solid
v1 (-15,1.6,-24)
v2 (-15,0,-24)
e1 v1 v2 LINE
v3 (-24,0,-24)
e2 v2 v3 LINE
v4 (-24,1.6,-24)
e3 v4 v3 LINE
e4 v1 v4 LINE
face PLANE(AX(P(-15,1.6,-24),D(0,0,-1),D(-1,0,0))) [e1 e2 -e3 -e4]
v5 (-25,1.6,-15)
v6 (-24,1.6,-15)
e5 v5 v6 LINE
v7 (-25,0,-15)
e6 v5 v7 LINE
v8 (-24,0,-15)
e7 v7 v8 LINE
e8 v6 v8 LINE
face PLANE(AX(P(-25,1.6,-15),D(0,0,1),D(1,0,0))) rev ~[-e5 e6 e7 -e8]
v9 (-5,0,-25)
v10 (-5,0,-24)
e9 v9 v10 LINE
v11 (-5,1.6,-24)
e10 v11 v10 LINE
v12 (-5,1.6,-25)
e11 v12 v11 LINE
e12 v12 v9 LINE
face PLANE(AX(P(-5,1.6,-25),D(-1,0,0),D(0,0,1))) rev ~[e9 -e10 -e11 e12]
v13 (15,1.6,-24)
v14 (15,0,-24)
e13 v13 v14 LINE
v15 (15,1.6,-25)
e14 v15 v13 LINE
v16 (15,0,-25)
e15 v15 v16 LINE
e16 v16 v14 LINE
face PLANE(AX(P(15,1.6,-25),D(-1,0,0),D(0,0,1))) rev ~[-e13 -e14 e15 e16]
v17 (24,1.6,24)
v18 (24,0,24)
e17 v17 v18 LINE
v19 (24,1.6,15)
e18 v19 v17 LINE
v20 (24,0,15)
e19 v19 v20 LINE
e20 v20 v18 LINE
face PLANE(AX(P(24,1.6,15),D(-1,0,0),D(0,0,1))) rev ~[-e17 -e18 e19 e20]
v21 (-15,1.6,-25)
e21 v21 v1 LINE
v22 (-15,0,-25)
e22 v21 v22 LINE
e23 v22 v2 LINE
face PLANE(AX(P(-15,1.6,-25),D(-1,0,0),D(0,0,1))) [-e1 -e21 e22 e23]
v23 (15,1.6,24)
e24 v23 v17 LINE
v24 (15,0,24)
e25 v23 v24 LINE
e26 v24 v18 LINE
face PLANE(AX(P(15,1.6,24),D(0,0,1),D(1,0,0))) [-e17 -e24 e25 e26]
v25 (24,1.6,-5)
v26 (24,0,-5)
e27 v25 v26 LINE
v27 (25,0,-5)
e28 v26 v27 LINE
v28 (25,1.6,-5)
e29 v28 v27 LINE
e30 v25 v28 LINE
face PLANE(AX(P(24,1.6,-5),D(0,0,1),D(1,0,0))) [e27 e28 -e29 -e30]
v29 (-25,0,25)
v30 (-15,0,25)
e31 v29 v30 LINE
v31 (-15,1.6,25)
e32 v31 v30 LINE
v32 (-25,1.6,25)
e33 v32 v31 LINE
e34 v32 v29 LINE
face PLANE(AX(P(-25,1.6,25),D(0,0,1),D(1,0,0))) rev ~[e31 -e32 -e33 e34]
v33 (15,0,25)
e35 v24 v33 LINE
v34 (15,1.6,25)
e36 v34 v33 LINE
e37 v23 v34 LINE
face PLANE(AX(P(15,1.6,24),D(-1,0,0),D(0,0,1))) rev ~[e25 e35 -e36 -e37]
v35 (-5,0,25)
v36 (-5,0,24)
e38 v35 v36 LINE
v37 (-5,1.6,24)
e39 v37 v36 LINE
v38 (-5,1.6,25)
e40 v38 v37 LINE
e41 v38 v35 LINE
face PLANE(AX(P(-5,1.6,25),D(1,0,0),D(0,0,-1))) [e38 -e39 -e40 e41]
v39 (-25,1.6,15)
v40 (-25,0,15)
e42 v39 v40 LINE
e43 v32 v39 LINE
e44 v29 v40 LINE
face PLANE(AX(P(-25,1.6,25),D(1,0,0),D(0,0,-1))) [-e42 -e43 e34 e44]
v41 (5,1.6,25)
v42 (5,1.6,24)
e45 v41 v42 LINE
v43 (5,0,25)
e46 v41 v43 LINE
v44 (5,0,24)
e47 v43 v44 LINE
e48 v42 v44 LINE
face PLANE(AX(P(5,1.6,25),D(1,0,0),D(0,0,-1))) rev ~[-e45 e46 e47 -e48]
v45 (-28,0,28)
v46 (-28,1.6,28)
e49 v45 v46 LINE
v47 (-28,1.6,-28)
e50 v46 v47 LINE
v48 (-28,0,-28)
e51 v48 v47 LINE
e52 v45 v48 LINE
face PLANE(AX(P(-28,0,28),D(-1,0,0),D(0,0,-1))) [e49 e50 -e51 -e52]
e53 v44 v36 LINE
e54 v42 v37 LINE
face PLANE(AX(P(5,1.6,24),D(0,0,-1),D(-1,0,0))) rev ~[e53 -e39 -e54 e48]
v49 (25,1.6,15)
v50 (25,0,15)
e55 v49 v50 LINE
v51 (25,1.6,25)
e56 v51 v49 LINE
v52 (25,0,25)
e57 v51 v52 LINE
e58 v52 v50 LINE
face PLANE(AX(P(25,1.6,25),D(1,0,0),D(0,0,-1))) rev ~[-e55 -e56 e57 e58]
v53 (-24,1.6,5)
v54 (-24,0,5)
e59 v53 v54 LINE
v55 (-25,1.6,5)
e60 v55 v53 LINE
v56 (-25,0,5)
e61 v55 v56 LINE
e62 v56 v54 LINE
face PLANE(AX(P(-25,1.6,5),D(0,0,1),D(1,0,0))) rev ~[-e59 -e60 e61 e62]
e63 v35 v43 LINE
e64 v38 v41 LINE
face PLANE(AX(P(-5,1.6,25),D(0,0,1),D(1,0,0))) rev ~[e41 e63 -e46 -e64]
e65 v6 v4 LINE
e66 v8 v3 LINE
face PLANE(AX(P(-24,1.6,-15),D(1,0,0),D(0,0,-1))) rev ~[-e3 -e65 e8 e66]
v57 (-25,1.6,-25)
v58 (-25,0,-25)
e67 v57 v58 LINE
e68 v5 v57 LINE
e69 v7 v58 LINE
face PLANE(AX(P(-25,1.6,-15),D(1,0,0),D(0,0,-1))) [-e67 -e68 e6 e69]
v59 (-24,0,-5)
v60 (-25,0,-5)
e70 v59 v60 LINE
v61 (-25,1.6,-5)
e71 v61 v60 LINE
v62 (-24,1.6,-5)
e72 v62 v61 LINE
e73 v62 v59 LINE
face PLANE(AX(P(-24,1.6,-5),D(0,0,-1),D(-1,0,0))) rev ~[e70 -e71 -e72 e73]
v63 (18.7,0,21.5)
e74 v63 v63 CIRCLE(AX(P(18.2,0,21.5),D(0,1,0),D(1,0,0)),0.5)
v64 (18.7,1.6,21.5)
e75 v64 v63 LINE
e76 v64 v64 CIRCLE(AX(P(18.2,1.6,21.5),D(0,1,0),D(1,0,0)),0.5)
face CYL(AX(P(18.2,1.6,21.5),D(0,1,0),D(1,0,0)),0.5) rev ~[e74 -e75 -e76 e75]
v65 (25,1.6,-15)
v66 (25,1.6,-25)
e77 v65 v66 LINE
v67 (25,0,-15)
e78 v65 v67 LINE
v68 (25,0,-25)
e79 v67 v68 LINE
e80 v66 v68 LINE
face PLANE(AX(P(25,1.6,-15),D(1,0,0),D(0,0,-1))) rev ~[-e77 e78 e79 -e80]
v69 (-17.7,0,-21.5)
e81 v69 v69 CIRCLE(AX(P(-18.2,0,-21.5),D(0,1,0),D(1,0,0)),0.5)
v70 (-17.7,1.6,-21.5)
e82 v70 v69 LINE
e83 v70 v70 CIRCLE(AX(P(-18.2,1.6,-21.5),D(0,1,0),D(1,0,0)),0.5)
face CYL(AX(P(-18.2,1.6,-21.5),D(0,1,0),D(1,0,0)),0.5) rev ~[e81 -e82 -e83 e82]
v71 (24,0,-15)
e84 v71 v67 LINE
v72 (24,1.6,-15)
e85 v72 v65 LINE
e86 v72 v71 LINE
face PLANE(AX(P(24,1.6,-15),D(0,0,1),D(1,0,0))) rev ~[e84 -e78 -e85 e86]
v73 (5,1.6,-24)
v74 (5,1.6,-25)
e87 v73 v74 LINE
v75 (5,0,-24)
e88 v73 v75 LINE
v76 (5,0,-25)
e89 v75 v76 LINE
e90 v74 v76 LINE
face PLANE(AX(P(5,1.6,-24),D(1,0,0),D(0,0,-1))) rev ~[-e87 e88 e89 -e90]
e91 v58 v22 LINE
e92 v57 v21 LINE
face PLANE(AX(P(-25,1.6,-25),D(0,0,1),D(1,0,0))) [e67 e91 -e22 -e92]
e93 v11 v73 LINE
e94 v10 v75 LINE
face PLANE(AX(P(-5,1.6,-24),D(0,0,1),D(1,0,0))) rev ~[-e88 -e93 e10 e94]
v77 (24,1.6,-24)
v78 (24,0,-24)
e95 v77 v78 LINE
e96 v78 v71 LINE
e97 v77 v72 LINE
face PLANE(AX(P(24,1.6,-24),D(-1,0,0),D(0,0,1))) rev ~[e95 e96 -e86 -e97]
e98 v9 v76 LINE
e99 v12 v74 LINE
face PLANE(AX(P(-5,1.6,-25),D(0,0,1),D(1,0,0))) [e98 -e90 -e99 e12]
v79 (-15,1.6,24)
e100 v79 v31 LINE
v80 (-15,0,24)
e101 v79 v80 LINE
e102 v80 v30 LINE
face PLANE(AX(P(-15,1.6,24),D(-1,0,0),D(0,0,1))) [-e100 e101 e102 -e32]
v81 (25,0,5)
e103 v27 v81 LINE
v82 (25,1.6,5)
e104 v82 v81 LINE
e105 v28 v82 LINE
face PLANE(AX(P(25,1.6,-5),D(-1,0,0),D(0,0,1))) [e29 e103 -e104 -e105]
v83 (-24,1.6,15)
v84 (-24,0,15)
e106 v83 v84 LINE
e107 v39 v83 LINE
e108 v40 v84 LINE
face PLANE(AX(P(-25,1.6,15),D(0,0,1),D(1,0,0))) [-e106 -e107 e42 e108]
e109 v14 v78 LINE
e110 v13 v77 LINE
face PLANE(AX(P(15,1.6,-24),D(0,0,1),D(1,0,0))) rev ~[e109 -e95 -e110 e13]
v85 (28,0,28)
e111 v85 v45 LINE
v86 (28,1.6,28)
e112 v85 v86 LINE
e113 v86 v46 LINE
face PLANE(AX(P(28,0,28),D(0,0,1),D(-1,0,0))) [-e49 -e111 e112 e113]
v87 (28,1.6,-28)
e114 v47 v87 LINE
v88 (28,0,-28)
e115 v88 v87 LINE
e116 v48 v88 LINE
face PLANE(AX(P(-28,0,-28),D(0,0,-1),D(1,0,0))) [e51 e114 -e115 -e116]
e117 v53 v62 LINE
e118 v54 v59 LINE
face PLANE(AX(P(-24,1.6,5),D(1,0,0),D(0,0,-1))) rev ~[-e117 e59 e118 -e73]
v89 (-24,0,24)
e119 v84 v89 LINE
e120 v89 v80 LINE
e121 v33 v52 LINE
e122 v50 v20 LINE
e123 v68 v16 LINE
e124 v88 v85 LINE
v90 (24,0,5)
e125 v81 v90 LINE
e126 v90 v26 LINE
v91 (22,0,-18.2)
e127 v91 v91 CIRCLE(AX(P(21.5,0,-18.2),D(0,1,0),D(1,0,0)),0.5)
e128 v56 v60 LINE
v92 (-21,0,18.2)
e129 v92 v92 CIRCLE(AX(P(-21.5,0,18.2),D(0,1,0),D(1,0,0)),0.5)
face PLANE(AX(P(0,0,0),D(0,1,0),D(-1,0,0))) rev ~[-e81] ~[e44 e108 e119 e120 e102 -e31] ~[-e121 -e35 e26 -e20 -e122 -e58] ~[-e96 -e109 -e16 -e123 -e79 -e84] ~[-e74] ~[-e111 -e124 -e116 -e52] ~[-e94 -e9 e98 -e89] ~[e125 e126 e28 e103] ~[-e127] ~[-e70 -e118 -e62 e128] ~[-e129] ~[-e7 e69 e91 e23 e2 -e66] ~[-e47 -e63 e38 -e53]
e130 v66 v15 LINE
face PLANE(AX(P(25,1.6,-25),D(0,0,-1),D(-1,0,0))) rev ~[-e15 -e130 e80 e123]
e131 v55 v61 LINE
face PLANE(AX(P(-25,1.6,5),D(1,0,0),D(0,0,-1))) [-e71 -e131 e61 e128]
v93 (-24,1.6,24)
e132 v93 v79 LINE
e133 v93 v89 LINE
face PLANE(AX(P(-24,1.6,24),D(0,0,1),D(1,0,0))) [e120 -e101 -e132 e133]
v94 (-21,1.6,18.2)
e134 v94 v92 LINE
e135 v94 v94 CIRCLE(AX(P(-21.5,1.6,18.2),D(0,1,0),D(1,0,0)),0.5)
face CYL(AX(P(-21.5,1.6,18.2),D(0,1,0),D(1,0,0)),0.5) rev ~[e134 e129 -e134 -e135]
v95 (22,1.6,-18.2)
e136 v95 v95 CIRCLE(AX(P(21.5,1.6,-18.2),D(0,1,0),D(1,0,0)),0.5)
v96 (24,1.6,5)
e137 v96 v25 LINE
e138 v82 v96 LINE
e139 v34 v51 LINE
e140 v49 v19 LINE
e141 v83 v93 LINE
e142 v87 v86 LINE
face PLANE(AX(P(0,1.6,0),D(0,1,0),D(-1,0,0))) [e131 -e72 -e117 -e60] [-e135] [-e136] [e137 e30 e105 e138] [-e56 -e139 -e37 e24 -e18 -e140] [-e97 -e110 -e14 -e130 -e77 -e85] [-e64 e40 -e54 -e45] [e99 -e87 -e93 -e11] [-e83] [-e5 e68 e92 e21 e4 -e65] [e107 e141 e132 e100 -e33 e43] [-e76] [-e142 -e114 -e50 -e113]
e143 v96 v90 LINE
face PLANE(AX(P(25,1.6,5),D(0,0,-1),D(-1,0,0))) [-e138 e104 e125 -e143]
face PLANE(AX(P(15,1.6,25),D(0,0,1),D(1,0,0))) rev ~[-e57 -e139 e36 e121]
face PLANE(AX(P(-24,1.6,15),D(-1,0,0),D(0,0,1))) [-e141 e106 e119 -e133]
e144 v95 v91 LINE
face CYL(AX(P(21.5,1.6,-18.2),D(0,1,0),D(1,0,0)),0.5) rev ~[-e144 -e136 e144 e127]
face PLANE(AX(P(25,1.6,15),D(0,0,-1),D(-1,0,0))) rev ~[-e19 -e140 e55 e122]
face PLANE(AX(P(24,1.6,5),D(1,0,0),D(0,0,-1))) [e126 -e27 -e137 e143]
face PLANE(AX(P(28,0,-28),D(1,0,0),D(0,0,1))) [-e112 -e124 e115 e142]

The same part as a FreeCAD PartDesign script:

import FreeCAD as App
import Part
import Sketcher

V = App.Vector


def add_polygon(sketch, points):
    """Adds a closed chain of lines whose ends are joined by coincident constraints."""
    first, n = sketch.GeometryCount, len(points)
    for a, b in zip(points, points[1:] + points[:1]):
        sketch.addGeometry(Part.LineSegment(App.Vector(*a, 0), App.Vector(*b, 0)), False)
    for i in range(n):
        sketch.addConstraint(Sketcher.Constraint("Coincident", first + i, 2, first + (i + 1) % n, 1))

doc = App.newDocument("Part")
body = doc.addObject("PartDesign::Body", "Body")

# Sketch on XZ plane
sketch1 = body.newObject("Sketcher::SketchObject", "Sketch")
sketch1.AttachmentSupport = (doc.getObject("XZ_Plane"), [""])
sketch1.MapMode = "FlatFace"
add_polygon(sketch1, [(-28, 28), (28, 28), (28, -28), (-28, -28)])  # lines 0-3
sketch1.addConstraint([
    Sketcher.Constraint("Horizontal", 0),
    Sketcher.Constraint("Vertical", 1),
    Sketcher.Constraint("Horizontal", 2),
    Sketcher.Constraint("Vertical", 3),
    Sketcher.Constraint("Symmetric", 0, 2, 2, 2, -1, 1),
    Sketcher.Constraint("Equal", 2, 1),
    Sketcher.Constraint("DistanceX", 0, 1, 0, 2, 56.0),
])
pad1 = body.newObject("PartDesign::Pad", "Pad")
pad1.Profile = sketch1
pad1.Length = 1.6
pad1.Reversed = True

# Sketch on XZ plane
sketch2 = body.newObject("Sketcher::SketchObject", "Sketch001")
sketch2.AttachmentSupport = (doc.getObject("XZ_Plane"), [""])
sketch2.MapMode = "FlatFace"
sketch2.AttachmentOffset = App.Placement(V(0, 0, -1.6), App.Rotation())
add_polygon(sketch2, [(-25, 15), (-25, 25), (-15, 25), (-15, 24), (-24, 24), (-24, 15)])  # lines 0-5
add_polygon(sketch2, [(24, 24), (15, 24), (15, 25), (25, 25), (25, 15), (24, 15)])  # lines 6-11
add_polygon(sketch2, [(-5, 24), (-5, 25), (5, 25), (5, 24)])  # lines 12-15
add_polygon(sketch2, [(-25, -25), (-25, -15), (-24, -15), (-24, -24), (-15, -24), (-15, -25)])  # lines 16-21
add_polygon(sketch2, [(-25, -5), (-25, 5), (-24, 5), (-24, -5)])  # lines 22-25
add_polygon(sketch2, [(5, -25), (-5, -25), (-5, -24), (5, -24)])  # lines 26-29
add_polygon(sketch2, [(25, -15), (25, -25), (15, -25), (15, -24), (24, -24), (24, -15)])  # lines 30-35
add_polygon(sketch2, [(24, 5), (25, 5), (25, -5), (24, -5)])  # lines 36-39
sketch2.addConstraint([
    Sketcher.Constraint("Vertical", 0),
    Sketcher.Constraint("Horizontal", 1),
    Sketcher.Constraint("Vertical", 2),
    Sketcher.Constraint("Horizontal", 3),
    Sketcher.Constraint("Vertical", 4),
    Sketcher.Constraint("Horizontal", 5),
    Sketcher.Constraint("Horizontal", 6),
    Sketcher.Constraint("Vertical", 7),
    Sketcher.Constraint("Horizontal", 8),
    Sketcher.Constraint("Vertical", 9),
    Sketcher.Constraint("Horizontal", 10),
    Sketcher.Constraint("Vertical", 11),
    Sketcher.Constraint("Vertical", 12),
    Sketcher.Constraint("Horizontal", 13),
    Sketcher.Constraint("Vertical", 14),
    Sketcher.Constraint("Horizontal", 15),
    Sketcher.Constraint("Vertical", 16),
    Sketcher.Constraint("Horizontal", 17),
    Sketcher.Constraint("Vertical", 18),
    Sketcher.Constraint("Horizontal", 19),
    Sketcher.Constraint("Vertical", 20),
    Sketcher.Constraint("Horizontal", 21),
    Sketcher.Constraint("Vertical", 22),
    Sketcher.Constraint("Horizontal", 23),
    Sketcher.Constraint("Vertical", 24),
    Sketcher.Constraint("Horizontal", 25),
    Sketcher.Constraint("Horizontal", 26),
    Sketcher.Constraint("Vertical", 27),
    Sketcher.Constraint("Horizontal", 28),
    Sketcher.Constraint("Vertical", 29),
    Sketcher.Constraint("Vertical", 30),
    Sketcher.Constraint("Horizontal", 31),
    Sketcher.Constraint("Vertical", 32),
    Sketcher.Constraint("Horizontal", 33),
    Sketcher.Constraint("Vertical", 34),
    Sketcher.Constraint("Horizontal", 35),
    Sketcher.Constraint("Horizontal", 36),
    Sketcher.Constraint("Vertical", 37),
    Sketcher.Constraint("Horizontal", 38),
    Sketcher.Constraint("Vertical", 39),
    Sketcher.Constraint("Symmetric", 9, 2, 16, 2, -1, 1),
    Sketcher.Constraint("Symmetric", 11, 2, 18, 2, -1, 1),
    Sketcher.Constraint("Symmetric", 7, 2, 20, 2, -1, 1),
    Sketcher.Constraint("Symmetric", 13, 2, 26, 2, -1, 1),
    Sketcher.Constraint("Symmetric", 15, 2, 28, 2, -1, 1),
    Sketcher.Constraint("Symmetric", 0, 2, 30, 2, -1, 1),
    Sketcher.Constraint("Symmetric", 2, 2, 32, 2, -1, 1),
    Sketcher.Constraint("Symmetric", 4, 2, 34, 2, -1, 1),
    Sketcher.Constraint("Symmetric", 25, 2, 36, 2, -1, 1),
    Sketcher.Constraint("Symmetric", 23, 2, 38, 2, -1, 1),
    Sketcher.Constraint("Symmetric", 2, 2, 6, 2, -2),
    Sketcher.Constraint("Symmetric", 0, 2, 8, 2, -2),
    Sketcher.Constraint("Symmetric", 4, 2, 10, 2, -2),
    Sketcher.Constraint("Horizontal", 8, 2, 12, 2),
    Sketcher.Constraint("Horizontal", 11, 2, 14, 2),
    Sketcher.Constraint("Horizontal", 23, 2, 36, 2),
    Sketcher.Constraint("Vertical", 21, 2, 22, 2),
    Sketcher.Constraint("Vertical", 18, 2, 23, 2),
    Sketcher.Constraint("Vertical", 15, 2, 26, 2),
    Sketcher.Constraint("Equal", 8, 13),
    Sketcher.Constraint("Equal", 31, 0),
    Sketcher.Constraint("Equal", 38, 2),
    Sketcher.Constraint("Equal", 16, 22),
    Sketcher.Constraint("DistanceX", 1, 1, 1, 2, 10.0),
    Sketcher.Constraint("DistanceX", 3, 2, 3, 1, 9.0),
    Sketcher.Constraint("DistanceX", 1, 2, 12, 2, 10.0),
    Sketcher.Constraint("DistanceY", 22, 2, 5, 2, 10.0),
])
pocket1 = body.newObject("PartDesign::Pocket", "Pocket")
pocket1.Profile = sketch2
pocket1.Length = 1.6
pocket1.Reversed = True

# Sketch on XZ plane
sketch3 = body.newObject("Sketcher::SketchObject", "Sketch002")
sketch3.AttachmentSupport = (doc.getObject("XZ_Plane"), [""])
sketch3.MapMode = "FlatFace"
sketch3.AttachmentOffset = App.Placement(V(0, 0, -1.6), App.Rotation())
sketch3.addGeometry([
    Part.Circle(V(-18.2, -21.5, 0), V(0, 0, 1), 0.5),
    Part.Circle(V(21.5, -18.2, 0), V(0, 0, 1), 0.5),
    Part.Circle(V(18.2, 21.5, 0), V(0, 0, 1), 0.5),
    Part.Circle(V(-21.5, 18.2, 0), V(0, 0, 1), 0.5),
], False)
sketch3.addConstraint([
    Sketcher.Constraint("Equal", 0, 1),
    Sketcher.Constraint("Equal", 1, 2),
    Sketcher.Constraint("Equal", 2, 3),
    Sketcher.Constraint("Symmetric", 0, 3, 2, 3, -1, 1),
    Sketcher.Constraint("Symmetric", 1, 3, 3, 3, -1, 1),
    Sketcher.Constraint("Diameter", 0, 1.0),
    Sketcher.Constraint("DistanceY", 0, 3, 2, 3, 43.0),
    Sketcher.Constraint("DistanceX", 3, 3, 1, 3, 43.0),
    Sketcher.Constraint("DistanceX", 0, 3, -1, 1, 18.2),
    Sketcher.Constraint("DistanceY", 1, 3, -1, 1, 18.2),
])
pocket2 = body.newObject("PartDesign::Pocket", "Pocket001")
pocket2.Profile = sketch3
pocket2.Length = 1.6
pocket2.Reversed = True

doc.recompute()
